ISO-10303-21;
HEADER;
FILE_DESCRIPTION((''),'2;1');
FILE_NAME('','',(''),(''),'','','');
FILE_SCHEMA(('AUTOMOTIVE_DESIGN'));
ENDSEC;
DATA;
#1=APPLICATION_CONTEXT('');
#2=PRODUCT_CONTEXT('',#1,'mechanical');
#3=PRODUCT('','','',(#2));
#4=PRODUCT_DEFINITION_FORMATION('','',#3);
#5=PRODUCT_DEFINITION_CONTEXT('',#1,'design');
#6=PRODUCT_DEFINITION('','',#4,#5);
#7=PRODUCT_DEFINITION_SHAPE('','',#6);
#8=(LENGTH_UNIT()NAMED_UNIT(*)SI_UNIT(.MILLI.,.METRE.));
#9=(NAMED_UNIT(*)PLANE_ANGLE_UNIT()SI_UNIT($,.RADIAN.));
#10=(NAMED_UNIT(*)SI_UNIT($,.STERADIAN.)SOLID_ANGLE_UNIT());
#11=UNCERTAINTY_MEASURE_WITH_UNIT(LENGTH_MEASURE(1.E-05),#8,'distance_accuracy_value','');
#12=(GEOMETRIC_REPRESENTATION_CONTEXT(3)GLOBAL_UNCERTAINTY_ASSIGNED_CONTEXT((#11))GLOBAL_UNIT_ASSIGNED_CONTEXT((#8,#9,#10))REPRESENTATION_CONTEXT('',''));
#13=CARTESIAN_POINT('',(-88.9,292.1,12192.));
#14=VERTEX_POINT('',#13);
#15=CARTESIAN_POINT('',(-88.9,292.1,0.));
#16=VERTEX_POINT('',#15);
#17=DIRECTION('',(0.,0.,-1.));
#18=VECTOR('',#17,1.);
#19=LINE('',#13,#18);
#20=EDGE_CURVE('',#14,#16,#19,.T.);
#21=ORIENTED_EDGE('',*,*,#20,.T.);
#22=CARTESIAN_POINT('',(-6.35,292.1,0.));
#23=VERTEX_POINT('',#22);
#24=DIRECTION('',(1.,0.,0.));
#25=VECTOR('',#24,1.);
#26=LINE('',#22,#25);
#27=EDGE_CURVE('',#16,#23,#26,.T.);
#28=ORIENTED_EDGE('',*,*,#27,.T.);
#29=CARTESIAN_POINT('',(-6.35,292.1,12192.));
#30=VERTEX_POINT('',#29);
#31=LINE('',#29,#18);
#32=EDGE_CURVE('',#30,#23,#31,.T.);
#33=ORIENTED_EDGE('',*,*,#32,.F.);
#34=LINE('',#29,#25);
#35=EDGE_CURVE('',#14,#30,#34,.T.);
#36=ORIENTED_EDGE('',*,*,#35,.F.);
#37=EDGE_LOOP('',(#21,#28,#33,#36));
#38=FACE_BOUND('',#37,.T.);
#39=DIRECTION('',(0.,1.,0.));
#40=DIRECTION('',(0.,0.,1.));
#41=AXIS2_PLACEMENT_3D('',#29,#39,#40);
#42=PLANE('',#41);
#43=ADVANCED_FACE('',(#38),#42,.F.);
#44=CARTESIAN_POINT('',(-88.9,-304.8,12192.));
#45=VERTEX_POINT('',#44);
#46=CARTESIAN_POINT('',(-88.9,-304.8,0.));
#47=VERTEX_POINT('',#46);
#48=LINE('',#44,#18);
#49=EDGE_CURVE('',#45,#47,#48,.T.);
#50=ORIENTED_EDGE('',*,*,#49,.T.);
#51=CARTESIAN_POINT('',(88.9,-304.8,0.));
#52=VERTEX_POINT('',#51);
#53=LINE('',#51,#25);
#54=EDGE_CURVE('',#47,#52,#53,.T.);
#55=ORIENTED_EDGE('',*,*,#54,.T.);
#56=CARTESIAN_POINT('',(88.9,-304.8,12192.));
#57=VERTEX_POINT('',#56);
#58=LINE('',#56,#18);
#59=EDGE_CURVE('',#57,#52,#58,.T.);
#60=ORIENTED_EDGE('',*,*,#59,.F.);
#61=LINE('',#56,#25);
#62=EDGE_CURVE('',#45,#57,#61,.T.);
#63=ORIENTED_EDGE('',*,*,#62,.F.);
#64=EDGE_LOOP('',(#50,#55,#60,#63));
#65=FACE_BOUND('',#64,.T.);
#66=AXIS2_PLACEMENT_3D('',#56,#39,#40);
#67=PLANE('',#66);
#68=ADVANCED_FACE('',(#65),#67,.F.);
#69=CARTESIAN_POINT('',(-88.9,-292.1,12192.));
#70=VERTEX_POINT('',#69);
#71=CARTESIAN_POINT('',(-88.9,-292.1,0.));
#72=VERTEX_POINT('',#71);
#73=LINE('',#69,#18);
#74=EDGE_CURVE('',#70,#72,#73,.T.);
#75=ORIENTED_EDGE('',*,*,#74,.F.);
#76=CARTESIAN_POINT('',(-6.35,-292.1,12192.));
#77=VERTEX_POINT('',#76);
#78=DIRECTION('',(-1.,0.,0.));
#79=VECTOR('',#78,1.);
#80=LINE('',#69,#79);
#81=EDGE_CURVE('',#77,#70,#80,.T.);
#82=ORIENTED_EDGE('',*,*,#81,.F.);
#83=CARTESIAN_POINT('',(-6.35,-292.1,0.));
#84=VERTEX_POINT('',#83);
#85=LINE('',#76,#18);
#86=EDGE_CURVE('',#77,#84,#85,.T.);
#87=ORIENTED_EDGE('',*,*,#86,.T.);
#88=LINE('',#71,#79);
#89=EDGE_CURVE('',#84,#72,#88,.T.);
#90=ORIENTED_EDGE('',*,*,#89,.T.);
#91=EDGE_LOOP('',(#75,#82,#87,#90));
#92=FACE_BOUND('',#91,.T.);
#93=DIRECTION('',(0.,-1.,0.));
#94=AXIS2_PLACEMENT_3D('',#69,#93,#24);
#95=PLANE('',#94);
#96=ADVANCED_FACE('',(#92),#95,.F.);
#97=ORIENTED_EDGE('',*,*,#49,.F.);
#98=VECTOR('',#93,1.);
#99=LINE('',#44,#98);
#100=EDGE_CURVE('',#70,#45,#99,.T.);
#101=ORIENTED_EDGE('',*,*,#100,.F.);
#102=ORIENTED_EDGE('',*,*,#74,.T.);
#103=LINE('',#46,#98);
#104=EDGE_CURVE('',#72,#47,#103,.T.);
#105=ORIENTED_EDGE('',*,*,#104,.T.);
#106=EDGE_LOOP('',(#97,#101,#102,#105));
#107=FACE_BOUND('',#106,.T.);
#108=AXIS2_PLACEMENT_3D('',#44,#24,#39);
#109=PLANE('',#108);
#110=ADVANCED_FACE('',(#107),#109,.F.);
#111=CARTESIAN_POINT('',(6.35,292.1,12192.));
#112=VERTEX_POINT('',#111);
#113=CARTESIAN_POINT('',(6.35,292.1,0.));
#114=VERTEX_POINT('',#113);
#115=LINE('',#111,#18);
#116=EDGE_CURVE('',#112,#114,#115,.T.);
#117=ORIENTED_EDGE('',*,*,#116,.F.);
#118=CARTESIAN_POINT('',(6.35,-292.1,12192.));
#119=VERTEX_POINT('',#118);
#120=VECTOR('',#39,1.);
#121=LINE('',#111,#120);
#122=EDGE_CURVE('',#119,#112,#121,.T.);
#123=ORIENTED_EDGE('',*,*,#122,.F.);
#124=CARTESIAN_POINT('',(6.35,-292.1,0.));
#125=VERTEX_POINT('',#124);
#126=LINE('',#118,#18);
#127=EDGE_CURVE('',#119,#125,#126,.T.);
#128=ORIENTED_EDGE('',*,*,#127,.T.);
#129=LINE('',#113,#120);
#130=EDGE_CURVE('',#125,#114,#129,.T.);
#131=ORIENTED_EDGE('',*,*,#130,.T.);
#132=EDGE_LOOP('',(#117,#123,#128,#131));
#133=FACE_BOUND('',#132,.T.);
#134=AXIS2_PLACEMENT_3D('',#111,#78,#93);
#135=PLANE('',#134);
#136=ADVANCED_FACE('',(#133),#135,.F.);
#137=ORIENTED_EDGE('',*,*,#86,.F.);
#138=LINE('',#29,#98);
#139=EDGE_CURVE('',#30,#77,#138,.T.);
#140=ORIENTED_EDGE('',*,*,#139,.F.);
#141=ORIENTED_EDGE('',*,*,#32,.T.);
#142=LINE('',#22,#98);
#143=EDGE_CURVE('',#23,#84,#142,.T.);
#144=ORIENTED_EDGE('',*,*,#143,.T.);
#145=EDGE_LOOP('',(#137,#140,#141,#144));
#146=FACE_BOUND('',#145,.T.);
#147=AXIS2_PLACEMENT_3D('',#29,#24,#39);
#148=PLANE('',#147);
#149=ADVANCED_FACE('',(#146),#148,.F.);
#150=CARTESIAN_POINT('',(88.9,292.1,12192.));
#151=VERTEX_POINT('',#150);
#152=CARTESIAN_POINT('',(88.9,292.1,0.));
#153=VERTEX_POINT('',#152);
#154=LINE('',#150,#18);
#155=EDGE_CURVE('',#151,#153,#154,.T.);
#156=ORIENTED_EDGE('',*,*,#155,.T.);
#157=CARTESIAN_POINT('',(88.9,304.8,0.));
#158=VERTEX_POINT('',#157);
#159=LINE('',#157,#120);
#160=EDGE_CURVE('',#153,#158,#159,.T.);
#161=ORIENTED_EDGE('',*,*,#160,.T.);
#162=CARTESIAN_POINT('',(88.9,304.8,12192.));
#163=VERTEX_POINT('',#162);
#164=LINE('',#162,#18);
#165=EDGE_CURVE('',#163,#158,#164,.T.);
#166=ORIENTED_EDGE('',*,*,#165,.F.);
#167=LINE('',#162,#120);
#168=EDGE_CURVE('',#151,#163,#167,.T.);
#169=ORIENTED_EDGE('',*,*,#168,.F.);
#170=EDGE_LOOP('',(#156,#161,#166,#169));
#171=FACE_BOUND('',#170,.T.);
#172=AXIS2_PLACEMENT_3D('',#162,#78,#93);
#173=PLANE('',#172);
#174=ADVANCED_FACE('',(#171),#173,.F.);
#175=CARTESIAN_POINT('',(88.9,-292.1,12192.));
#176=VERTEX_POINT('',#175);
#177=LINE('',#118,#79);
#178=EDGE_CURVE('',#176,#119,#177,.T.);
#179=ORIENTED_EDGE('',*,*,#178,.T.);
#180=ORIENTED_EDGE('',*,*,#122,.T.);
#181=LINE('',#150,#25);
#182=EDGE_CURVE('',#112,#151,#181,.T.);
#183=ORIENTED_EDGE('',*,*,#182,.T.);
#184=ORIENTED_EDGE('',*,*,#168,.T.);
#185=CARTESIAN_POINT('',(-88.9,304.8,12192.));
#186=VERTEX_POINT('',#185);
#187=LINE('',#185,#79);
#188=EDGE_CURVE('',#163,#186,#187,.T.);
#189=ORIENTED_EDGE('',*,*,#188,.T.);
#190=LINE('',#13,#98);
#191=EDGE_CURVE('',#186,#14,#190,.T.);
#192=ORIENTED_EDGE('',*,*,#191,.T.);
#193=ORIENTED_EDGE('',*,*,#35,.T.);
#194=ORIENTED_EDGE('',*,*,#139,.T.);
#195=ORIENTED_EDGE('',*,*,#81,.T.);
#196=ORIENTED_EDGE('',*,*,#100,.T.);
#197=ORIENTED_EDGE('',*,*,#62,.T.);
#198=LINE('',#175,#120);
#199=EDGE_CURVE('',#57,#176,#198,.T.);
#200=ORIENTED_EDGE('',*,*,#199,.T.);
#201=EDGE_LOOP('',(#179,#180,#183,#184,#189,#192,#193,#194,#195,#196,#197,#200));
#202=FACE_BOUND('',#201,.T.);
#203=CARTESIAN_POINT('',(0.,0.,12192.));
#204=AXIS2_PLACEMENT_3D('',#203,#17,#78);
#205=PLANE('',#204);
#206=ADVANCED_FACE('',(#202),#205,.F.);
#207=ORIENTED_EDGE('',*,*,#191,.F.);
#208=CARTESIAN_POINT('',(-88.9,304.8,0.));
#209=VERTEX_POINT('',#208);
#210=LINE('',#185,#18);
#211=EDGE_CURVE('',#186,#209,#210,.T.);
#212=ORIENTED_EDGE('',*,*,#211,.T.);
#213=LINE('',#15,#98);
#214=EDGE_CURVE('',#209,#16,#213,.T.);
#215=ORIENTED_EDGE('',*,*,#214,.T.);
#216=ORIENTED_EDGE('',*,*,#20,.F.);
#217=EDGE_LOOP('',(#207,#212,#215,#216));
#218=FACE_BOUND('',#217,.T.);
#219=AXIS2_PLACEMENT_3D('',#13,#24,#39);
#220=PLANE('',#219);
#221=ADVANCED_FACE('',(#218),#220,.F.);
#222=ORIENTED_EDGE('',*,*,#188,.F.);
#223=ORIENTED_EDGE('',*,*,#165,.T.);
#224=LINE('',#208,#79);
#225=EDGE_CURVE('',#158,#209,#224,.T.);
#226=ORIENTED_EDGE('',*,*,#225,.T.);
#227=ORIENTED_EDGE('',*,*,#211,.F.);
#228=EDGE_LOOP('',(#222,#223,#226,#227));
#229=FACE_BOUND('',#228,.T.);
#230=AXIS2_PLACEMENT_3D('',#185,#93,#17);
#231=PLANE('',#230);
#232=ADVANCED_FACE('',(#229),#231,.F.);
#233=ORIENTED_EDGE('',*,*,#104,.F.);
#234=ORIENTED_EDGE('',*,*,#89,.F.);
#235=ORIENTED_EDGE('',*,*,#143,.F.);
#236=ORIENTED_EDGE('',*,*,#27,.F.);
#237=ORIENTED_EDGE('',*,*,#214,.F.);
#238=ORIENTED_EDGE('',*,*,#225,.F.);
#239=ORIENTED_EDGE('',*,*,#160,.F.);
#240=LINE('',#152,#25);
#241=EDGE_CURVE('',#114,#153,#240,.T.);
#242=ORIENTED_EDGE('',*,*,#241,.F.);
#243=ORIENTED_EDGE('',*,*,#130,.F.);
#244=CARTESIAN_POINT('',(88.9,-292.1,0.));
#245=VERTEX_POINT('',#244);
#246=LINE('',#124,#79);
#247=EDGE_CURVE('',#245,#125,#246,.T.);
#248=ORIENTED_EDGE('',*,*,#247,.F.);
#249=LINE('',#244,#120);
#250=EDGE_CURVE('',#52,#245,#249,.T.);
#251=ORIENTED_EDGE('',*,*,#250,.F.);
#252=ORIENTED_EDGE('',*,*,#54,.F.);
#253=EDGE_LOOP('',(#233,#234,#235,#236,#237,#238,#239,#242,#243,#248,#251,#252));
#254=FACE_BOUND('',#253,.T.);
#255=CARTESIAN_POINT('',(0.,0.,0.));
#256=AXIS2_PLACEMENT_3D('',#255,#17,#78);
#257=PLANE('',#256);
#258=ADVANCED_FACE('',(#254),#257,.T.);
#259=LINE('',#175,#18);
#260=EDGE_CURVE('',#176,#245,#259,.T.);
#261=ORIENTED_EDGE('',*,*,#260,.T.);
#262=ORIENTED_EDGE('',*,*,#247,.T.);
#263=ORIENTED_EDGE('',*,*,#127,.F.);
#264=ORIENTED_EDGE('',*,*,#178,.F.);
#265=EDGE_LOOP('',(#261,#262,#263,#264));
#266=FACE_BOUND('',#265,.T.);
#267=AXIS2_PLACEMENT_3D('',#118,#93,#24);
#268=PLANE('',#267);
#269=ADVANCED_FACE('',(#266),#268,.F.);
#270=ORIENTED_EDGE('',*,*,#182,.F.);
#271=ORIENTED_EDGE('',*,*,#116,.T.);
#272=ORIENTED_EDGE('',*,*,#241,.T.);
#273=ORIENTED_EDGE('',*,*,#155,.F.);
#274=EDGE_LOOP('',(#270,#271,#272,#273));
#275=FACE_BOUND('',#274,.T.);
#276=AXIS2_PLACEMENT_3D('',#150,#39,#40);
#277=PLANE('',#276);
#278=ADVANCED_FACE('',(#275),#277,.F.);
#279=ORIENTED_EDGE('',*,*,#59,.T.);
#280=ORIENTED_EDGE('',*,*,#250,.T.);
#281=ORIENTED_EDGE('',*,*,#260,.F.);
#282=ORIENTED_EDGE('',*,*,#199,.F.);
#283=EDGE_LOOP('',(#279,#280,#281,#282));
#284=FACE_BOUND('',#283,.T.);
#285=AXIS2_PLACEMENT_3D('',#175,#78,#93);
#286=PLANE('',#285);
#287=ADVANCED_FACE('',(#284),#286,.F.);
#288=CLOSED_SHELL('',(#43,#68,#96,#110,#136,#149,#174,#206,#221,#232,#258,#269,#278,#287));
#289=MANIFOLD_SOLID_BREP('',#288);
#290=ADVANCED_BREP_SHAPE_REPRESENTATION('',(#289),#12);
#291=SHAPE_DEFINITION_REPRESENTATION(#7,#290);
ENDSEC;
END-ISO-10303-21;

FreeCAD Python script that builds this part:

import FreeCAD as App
import Part
import Sketcher
Q = App.Units.Quantity

doc = App.newDocument("Part")
body = doc.addObject("PartDesign::Body", "Body")

# Sketch on XY plane
sketch1 = doc.addObject("Sketcher::SketchObject", "Sketch")
body.addObject(sketch1)
sketch1.AttachmentSupport = (doc.XY_Plane, [""])
sketch1.MapMode = "FlatFace"
sketch1.addGeometry(Part.LineSegment(App.Vector(-6, 292, 0), App.Vector(-6, -292, 0)), False)
sketch1.addGeometry(Part.LineSegment(App.Vector(-6, -292, 0), App.Vector(-89, -292, 0)), False)
sketch1.addGeometry(Part.LineSegment(App.Vector(-89, -292, 0), App.Vector(-89, -305, 0)), False)
sketch1.addGeometry(Part.LineSegment(App.Vector(-89, -305, 0), App.Vector(89, -305, 0)), False)
sketch1.addGeometry(Part.LineSegment(App.Vector(89, -305, 0), App.Vector(89, -292, 0)), False)
sketch1.addGeometry(Part.LineSegment(App.Vector(89, -292, 0), App.Vector(6, -292, 0)), False)
sketch1.addGeometry(Part.LineSegment(App.Vector(6, -292, 0), App.Vector(6, 292, 0)), False)
sketch1.addGeometry(Part.LineSegment(App.Vector(6, 292, 0), App.Vector(89, 292, 0)), False)
sketch1.addGeometry(Part.LineSegment(App.Vector(89, 292, 0), App.Vector(89, 305, 0)), False)
sketch1.addGeometry(Part.LineSegment(App.Vector(89, 305, 0), App.Vector(-89, 305, 0)), False)
sketch1.addGeometry(Part.LineSegment(App.Vector(-89, 305, 0), App.Vector(-89, 292, 0)), False)
sketch1.addGeometry(Part.LineSegment(App.Vector(-89, 292, 0), App.Vector(-6, 292, 0)), False)
sketch1.addConstraint(Sketcher.Constraint("Coincident", 0, 2, 1, 1))
sketch1.addConstraint(Sketcher.Constraint("Coincident", 1, 2, 2, 1))
sketch1.addConstraint(Sketcher.Constraint("Coincident", 2, 2, 3, 1))
sketch1.addConstraint(Sketcher.Constraint("Coincident", 3, 2, 4, 1))
sketch1.addConstraint(Sketcher.Constraint("Coincident", 4, 2, 5, 1))
sketch1.addConstraint(Sketcher.Constraint("Coincident", 5, 2, 6, 1))
sketch1.addConstraint(Sketcher.Constraint("Coincident", 6, 2, 7, 1))
sketch1.addConstraint(Sketcher.Constraint("Coincident", 7, 2, 8, 1))
sketch1.addConstraint(Sketcher.Constraint("Coincident", 8, 2, 9, 1))
sketch1.addConstraint(Sketcher.Constraint("Coincident", 9, 2, 10, 1))
sketch1.addConstraint(Sketcher.Constraint("Coincident", 10, 2, 11, 1))
sketch1.addConstraint(Sketcher.Constraint("Coincident", 11, 2, 0, 1))
sketch1.addConstraint(Sketcher.Constraint("Vertical", 0))
sketch1.addConstraint(Sketcher.Constraint("Horizontal", 1))
sketch1.addConstraint(Sketcher.Constraint("Vertical", 2))
sketch1.addConstraint(Sketcher.Constraint("Horizontal", 3))
sketch1.addConstraint(Sketcher.Constraint("Vertical", 4))
sketch1.addConstraint(Sketcher.Constraint("Horizontal", 5))
sketch1.addConstraint(Sketcher.Constraint("Vertical", 6))
sketch1.addConstraint(Sketcher.Constraint("Horizontal", 7))
sketch1.addConstraint(Sketcher.Constraint("Vertical", 8))
sketch1.addConstraint(Sketcher.Constraint("Horizontal", 9))
sketch1.addConstraint(Sketcher.Constraint("Vertical", 10))
sketch1.addConstraint(Sketcher.Constraint("Horizontal", 11))
sketch1.addConstraint(Sketcher.Constraint("Symmetric", 0, 2, 6, 2, -1, 1))
sketch1.addConstraint(Sketcher.Constraint("Symmetric", 2, 2, 8, 2, -1, 1))
sketch1.addConstraint(Sketcher.Constraint("Symmetric", 4, 2, 10, 2, -1, 1))
sketch1.addConstraint(Sketcher.Constraint("Symmetric", 1, 2, 4, 2, -2))
sketch1.addConstraint(Sketcher.Constraint("DistanceX", 3, 1, 3, 2, Q("7 in")))
sketch1.addConstraint(Sketcher.Constraint("DistanceY", 0, 2, 0, 1, Q("23 in")))
sketch1.addConstraint(Sketcher.Constraint("DistanceY", 2, 2, 2, 1, Q("0.5 in")))
sketch1.addConstraint(Sketcher.Constraint("DistanceX", 1, 2, 1, 1, Q("3.25 in")))
pad1 = doc.addObject("PartDesign::Pad", "Pad")
body.addObject(pad1)
pad1.Profile = sketch1
pad1.Length = Q("480 in")

doc.recompute()
